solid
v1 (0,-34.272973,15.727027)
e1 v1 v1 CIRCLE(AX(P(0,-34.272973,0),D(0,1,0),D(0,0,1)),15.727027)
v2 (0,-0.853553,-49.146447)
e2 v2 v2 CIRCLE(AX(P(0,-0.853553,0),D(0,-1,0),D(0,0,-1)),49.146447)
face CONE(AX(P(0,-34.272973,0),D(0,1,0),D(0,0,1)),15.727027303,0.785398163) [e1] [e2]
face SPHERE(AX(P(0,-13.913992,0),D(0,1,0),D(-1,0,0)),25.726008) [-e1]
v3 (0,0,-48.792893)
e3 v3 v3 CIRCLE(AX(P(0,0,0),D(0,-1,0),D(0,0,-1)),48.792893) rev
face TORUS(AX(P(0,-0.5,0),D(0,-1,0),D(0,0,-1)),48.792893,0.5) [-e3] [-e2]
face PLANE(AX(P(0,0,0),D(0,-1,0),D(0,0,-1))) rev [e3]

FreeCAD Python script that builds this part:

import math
import FreeCAD as App
import Part
import Sketcher

V = App.Vector
Q = App.Units.Quantity


def edges_at(feature, points):
    """Names of the edges that pass closest to the given points."""
    edges = feature.Shape.Edges
    near = lambda p: min(range(len(edges)), key=lambda i: edges[i].distToShape(Part.Vertex(*p))[0])
    return sorted({f"Edge{near(p) + 1}" for p in points})

doc = App.newDocument("Part")
body = doc.addObject("PartDesign::Body", "Body")

sketch1 = doc.addObject("Sketcher::SketchObject", "Sketch")
body.addObject(sketch1)
sketch1.AttachmentSupport = (doc.XY_Plane, [""])
sketch1.MapMode = "FlatFace"
sketch1.addGeometry([
    Part.LineSegment(V(0, 0, 0), V(0, -40, 0)),
    Part.ArcOfCircle(Part.Circle(V(0, -14, 0), V(0, 0, 1), 26), math.radians(-90), math.radians(-52)),
    Part.LineSegment(V(16, -34, 0), V(50, 0, 0)),
    Part.LineSegment(V(50, 0, 0), V(0, 0, 0)),
], False)
sketch1.addConstraint([
    Sketcher.Constraint("Coincident", 0, 2, 1, 1),
    Sketcher.Constraint("Coincident", 1, 2, 2, 1),
    Sketcher.Constraint("Coincident", 2, 2, 3, 1),
    Sketcher.Constraint("Coincident", 3, 2, 0, 1),
    Sketcher.Constraint("Vertical", 0),
    Sketcher.Constraint("Horizontal", 3),
    Sketcher.Constraint("Coincident", 3, 2, -1, 1),
    Sketcher.Constraint("PointOnObject", 1, 3, -2),
    Sketcher.Constraint("DistanceX", 3, 2, 3, 1, Q("50 mm")),
    Sketcher.Constraint("Angle", 2, Q("45 deg")),
    Sketcher.Constraint("DistanceY", 0, 2, 0, 1, Q("39.64 mm")),
    Sketcher.Constraint("Radius", 1, Q("25.726008 mm")),
])
revolution = doc.addObject("PartDesign::Revolution", "Revolution")
body.addObject(revolution)
revolution.Profile = sketch1
revolution.ReferenceAxis = (sketch1, ["V_Axis"])
revolution.Angle = 360
doc.recompute()

fillet = doc.addObject("PartDesign::Fillet", "Fillet")
body.addObject(fillet)
fillet.Base = (revolution, edges_at(revolution, [(-50, 0, 0)]))
fillet.Radius = 0.5

doc.recompute()
